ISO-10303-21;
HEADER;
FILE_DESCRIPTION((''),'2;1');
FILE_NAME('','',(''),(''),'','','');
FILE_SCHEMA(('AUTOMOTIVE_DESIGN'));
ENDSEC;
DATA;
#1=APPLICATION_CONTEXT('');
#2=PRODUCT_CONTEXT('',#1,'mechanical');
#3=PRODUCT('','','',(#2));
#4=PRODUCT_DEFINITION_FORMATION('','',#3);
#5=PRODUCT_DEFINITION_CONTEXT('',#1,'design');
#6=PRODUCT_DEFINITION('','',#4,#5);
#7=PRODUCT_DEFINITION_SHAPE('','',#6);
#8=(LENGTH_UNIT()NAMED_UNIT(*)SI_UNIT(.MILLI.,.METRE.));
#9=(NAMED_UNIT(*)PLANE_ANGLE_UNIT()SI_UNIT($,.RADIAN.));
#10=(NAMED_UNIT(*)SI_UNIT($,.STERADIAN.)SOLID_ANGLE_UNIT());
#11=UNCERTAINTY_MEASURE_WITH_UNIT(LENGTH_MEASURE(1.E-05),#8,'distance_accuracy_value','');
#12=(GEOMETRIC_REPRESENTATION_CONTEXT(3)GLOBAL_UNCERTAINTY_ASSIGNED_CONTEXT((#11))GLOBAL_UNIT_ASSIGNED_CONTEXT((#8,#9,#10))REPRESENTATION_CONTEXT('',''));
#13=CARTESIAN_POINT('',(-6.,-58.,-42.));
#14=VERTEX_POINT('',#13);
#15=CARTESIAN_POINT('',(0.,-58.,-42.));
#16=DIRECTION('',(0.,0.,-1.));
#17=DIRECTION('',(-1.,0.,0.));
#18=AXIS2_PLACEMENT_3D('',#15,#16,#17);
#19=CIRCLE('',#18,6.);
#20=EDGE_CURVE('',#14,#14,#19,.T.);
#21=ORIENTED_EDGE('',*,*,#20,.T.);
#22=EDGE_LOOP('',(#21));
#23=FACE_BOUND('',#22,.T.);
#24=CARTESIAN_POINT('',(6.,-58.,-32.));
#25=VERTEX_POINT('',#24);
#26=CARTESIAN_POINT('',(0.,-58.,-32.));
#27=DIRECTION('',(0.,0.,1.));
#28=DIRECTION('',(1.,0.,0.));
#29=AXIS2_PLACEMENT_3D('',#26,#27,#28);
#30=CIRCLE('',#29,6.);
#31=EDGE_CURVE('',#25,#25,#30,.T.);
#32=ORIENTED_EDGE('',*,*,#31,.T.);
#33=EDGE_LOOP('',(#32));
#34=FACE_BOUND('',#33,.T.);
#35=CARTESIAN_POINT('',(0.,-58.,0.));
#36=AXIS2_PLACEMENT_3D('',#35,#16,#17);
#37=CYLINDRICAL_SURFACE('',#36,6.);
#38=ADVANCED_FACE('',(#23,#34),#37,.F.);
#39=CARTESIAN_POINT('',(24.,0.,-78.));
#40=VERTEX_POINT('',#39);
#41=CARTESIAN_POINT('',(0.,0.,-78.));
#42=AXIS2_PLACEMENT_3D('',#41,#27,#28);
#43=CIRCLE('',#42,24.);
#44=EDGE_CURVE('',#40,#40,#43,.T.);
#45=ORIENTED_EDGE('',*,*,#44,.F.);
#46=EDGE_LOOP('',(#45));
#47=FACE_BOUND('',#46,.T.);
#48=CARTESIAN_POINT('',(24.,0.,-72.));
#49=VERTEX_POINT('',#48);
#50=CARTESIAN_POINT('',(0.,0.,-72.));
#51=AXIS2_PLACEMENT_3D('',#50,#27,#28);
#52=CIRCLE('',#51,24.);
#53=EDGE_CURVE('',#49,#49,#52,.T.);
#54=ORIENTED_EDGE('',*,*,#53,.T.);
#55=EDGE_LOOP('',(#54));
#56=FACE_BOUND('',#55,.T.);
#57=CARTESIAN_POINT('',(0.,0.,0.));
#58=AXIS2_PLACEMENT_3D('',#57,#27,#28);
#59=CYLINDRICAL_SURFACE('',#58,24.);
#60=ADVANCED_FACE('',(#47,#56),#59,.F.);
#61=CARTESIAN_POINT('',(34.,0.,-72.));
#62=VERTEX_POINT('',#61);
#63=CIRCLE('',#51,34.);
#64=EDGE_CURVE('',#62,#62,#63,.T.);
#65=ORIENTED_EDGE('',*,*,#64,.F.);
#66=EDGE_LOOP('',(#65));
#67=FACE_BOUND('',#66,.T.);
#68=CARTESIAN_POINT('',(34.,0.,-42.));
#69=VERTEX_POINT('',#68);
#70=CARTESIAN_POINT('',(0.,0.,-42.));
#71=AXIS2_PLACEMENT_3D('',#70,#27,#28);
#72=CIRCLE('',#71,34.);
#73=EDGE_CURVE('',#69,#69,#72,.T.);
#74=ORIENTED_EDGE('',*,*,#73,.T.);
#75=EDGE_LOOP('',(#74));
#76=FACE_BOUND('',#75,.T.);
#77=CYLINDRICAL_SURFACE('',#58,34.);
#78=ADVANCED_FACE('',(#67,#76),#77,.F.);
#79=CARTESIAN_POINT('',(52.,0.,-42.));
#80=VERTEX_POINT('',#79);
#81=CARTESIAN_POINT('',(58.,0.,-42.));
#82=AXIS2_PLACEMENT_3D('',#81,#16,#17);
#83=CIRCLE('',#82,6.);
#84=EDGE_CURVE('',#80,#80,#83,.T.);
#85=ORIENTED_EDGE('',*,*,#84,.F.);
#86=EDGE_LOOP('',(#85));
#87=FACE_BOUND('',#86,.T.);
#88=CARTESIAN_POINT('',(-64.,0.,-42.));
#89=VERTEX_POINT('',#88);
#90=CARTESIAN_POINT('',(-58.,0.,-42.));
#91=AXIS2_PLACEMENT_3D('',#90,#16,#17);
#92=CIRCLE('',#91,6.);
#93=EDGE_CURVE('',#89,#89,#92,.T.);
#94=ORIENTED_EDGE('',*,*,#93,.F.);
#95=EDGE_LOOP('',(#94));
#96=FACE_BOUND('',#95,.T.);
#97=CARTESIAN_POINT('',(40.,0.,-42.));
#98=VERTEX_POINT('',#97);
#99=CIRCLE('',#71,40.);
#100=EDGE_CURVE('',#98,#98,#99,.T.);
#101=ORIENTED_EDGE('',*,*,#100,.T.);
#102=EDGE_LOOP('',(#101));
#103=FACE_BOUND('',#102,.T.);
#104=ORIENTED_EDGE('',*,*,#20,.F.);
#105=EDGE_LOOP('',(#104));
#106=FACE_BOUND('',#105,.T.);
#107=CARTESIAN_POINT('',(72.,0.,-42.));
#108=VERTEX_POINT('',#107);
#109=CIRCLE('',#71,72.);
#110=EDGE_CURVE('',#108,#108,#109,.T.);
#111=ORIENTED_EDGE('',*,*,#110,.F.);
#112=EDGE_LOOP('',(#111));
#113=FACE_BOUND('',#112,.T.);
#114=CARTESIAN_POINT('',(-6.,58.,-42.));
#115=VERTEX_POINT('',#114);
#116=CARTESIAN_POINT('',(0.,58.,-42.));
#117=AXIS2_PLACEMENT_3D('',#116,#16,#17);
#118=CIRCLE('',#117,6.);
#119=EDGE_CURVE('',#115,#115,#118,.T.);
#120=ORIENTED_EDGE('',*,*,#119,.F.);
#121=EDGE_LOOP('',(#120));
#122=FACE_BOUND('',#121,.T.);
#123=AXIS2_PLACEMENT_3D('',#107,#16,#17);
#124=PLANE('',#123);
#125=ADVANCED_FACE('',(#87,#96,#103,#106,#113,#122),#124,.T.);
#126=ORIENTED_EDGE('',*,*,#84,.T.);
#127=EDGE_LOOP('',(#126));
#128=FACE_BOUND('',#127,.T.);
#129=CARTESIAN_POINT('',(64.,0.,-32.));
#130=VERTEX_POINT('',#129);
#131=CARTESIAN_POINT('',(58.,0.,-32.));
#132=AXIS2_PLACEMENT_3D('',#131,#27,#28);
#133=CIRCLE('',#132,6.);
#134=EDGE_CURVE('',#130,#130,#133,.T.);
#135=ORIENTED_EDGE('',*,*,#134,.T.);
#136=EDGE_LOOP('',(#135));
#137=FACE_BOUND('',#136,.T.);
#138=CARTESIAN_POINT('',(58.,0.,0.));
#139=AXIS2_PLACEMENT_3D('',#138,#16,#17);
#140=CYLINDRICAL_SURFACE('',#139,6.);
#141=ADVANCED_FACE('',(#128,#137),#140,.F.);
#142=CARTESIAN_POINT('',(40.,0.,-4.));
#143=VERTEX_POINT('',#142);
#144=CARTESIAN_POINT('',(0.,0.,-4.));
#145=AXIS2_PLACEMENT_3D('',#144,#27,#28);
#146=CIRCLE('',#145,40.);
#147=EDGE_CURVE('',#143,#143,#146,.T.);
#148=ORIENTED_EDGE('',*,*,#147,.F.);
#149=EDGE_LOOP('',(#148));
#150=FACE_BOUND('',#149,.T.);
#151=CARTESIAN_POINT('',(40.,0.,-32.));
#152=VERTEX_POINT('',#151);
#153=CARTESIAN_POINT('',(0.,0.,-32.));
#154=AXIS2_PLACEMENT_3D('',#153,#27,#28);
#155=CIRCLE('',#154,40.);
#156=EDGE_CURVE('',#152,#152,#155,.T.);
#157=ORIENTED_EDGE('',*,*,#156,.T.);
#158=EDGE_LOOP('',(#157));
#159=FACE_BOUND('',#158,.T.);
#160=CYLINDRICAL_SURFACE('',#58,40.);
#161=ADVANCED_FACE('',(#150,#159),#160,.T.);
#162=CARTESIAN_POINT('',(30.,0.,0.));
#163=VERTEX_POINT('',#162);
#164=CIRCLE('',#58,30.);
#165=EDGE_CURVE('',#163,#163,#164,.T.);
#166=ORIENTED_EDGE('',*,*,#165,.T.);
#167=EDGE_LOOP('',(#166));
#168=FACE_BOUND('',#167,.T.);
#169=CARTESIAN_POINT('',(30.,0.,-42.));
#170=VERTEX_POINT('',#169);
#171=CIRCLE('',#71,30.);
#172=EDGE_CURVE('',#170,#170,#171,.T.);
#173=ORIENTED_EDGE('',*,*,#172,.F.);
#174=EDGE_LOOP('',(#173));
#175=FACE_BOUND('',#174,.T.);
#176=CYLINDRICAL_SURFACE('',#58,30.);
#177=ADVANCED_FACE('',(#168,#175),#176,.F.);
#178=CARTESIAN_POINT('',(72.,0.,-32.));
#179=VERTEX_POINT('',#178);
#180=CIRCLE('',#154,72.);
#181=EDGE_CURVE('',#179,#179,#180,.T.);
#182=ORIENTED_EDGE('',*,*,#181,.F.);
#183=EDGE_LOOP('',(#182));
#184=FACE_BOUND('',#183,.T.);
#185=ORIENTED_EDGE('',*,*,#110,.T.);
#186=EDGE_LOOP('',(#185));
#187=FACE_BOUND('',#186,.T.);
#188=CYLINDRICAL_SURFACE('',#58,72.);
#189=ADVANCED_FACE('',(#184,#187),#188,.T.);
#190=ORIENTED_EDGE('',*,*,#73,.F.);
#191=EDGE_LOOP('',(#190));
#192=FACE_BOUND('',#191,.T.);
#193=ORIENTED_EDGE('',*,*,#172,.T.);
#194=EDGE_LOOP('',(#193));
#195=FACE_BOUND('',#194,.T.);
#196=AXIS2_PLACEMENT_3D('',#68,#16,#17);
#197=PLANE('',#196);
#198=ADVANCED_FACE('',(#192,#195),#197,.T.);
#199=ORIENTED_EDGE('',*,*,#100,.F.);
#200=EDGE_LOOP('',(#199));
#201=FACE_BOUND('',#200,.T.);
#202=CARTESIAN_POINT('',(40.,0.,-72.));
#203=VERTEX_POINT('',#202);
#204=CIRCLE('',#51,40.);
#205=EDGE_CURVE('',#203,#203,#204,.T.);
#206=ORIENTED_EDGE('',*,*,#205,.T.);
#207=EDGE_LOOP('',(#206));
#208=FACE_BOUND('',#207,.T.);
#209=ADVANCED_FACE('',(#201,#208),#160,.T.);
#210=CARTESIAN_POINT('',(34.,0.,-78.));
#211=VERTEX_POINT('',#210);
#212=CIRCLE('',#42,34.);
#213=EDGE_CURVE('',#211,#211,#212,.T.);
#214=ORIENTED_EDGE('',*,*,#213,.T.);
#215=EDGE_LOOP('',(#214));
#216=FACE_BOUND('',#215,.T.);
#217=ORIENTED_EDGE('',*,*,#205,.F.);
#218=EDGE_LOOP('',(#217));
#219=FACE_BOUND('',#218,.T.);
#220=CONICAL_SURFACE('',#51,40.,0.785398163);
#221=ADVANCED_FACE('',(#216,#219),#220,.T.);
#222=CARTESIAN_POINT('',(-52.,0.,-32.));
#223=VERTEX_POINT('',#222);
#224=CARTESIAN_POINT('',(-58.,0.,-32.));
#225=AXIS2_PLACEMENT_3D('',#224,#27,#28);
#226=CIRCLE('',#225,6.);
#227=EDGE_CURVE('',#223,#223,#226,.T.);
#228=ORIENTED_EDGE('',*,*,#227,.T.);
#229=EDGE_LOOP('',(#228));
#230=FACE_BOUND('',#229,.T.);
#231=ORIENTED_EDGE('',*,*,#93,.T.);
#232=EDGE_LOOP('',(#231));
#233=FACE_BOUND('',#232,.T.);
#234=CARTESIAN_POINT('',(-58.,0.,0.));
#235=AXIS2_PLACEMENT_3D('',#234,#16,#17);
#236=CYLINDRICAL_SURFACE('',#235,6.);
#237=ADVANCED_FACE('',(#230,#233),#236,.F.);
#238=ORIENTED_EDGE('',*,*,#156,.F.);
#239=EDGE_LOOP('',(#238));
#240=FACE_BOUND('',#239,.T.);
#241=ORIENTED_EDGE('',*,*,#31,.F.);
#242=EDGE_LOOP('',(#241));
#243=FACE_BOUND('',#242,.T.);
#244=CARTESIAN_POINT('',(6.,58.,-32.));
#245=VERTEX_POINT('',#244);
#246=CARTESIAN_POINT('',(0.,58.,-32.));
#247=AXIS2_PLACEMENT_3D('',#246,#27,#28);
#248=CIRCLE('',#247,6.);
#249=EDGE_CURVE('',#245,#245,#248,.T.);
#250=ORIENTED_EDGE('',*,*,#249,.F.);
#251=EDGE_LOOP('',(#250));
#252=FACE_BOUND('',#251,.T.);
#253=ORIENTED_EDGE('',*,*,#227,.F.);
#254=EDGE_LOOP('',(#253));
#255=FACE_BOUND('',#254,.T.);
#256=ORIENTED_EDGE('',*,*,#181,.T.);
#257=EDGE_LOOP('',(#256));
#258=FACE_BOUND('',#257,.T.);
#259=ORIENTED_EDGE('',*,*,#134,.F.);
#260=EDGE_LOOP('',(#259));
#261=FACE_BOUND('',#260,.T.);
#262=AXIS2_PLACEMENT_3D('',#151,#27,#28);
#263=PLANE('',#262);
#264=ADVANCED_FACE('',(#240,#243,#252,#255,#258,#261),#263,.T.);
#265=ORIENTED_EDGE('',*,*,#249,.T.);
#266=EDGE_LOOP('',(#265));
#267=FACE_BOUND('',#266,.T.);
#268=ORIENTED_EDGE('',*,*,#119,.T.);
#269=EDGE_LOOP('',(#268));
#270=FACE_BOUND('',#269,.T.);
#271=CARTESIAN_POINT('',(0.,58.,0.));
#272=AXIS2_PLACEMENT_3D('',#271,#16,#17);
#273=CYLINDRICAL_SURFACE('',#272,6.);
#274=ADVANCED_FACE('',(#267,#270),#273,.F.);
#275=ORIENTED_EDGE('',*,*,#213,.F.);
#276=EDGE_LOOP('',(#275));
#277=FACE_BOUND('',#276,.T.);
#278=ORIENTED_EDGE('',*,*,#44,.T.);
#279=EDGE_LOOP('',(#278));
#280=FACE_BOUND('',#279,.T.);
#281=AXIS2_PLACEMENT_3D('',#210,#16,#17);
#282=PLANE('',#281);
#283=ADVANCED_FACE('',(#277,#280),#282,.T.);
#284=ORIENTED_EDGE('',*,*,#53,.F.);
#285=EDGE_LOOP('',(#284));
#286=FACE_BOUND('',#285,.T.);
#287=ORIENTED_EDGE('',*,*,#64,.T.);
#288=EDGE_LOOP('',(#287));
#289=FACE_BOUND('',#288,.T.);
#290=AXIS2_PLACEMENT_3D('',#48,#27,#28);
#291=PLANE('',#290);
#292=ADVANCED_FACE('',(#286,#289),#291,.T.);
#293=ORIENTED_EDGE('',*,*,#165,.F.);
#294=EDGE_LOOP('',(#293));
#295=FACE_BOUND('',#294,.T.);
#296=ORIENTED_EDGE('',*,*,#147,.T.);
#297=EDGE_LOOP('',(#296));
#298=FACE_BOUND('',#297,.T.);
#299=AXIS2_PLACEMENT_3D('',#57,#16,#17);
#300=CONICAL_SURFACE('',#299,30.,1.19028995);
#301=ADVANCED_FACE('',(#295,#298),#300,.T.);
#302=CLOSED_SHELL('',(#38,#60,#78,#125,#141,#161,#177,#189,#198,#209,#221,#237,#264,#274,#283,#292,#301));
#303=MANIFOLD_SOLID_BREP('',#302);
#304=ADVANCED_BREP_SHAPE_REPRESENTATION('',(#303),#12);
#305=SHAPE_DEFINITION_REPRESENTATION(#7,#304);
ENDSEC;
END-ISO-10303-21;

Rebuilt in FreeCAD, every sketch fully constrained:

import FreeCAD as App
import Part
import Sketcher

V = App.Vector
Q = App.Units.Quantity


def add_polygon(sketch, points):
    """Adds a closed chain of lines whose ends are joined by coincident constraints."""
    first, n = sketch.GeometryCount, len(points)
    for a, b in zip(points, points[1:] + points[:1]):
        sketch.addGeometry(Part.LineSegment(App.Vector(*a, 0), App.Vector(*b, 0)), False)
    for i in range(n):
        sketch.addConstraint(Sketcher.Constraint("Coincident", first + i, 2, first + (i + 1) % n, 1))

doc = App.newDocument("Part")
body = doc.addObject("PartDesign::Body", "Body")

# Sketch on XZ plane
sketch1 = body.newObject("Sketcher::SketchObject", "Sketch")
sketch1.AttachmentSupport = (doc.getObject("XZ_Plane"), [""])
sketch1.MapMode = "FlatFace"
add_polygon(sketch1, [(24, -78), (24, -72), (34, -72), (34, -42), (30, -42), (30, 0), (40, -4), (40, -32), (72, -32), (72, -42), (40, -42), (40, -72), (34, -78)])  # lines 0-12
sketch1.addConstraint(Sketcher.Constraint("Vertical", 0))
sketch1.addConstraint(Sketcher.Constraint("Horizontal", 1))
sketch1.addConstraint(Sketcher.Constraint("Vertical", 2))
sketch1.addConstraint(Sketcher.Constraint("Horizontal", 3))
sketch1.addConstraint(Sketcher.Constraint("Vertical", 4))
sketch1.addConstraint(Sketcher.Constraint("Vertical", 6))
sketch1.addConstraint(Sketcher.Constraint("Horizontal", 7))
sketch1.addConstraint(Sketcher.Constraint("Vertical", 8))
sketch1.addConstraint(Sketcher.Constraint("Horizontal", 9))
sketch1.addConstraint(Sketcher.Constraint("Vertical", 10))
sketch1.addConstraint(Sketcher.Constraint("Horizontal", 12))
sketch1.addConstraint(Sketcher.Constraint("PointOnObject", 4, 2, -1))
sketch1.addConstraint(Sketcher.Constraint("Horizontal", 3, 2, 8, 2))
sketch1.addConstraint(Sketcher.Constraint("Horizontal", 1, 2, 10, 2))
sketch1.addConstraint(Sketcher.Constraint("Vertical", 6, 2, 9, 2))
sketch1.addConstraint(Sketcher.Constraint("Vertical", 2, 2, 11, 2))
sketch1.addConstraint(Sketcher.Constraint("Equal", 12, 8))
sketch1.addConstraint(Sketcher.Constraint("DistanceX", 1, 1, 1, 2, Q("10 mm")))
sketch1.addConstraint(Sketcher.Constraint("DistanceX", 3, 2, 3, 1, Q("4 mm")))
sketch1.addConstraint(Sketcher.Constraint("DistanceX", 7, 1, 7, 2, Q("32 mm")))
sketch1.addConstraint(Sketcher.Constraint("DistanceY", 0, 1, 0, 2, Q("6 mm")))
sketch1.addConstraint(Sketcher.Constraint("DistanceY", 2, 1, 2, 2, Q("30 mm")))
sketch1.addConstraint(Sketcher.Constraint("DistanceY", 4, 1, 4, 2, Q("42 mm")))
sketch1.addConstraint(Sketcher.Constraint("DistanceY", 6, 2, 6, 1, Q("28 mm")))
sketch1.addConstraint(Sketcher.Constraint("Angle", 11, Q("-135 deg")))
sketch1.addConstraint(Sketcher.Constraint("DistanceX", -1, 1, 0, 2, Q("24 mm")))
revolution = body.newObject("PartDesign::Revolution", "Revolution")
revolution.Profile = sketch1
revolution.ReferenceAxis = (sketch1, ["V_Axis"])
revolution.Angle = 360

# Sketch on XY plane
sketch2 = body.newObject("Sketcher::SketchObject", "Sketch001")
sketch2.AttachmentSupport = (doc.getObject("XY_Plane"), [""])
sketch2.MapMode = "FlatFace"
sketch2.AttachmentOffset = App.Placement(V(0, 0, -42), App.Rotation())
sketch2.addGeometry(Part.Circle(V(0, 58, 0), V(0, 0, 1), 6), False)
sketch2.addGeometry(Part.Circle(V(-58, 0, 0), V(0, 0, 1), 6), False)
sketch2.addGeometry(Part.Circle(V(0, -58, 0), V(0, 0, 1), 6), False)
sketch2.addGeometry(Part.Circle(V(58, 0, 0), V(0, 0, 1), 6), False)
sketch2.addConstraint(Sketcher.Constraint("Equal", 0, 1))
sketch2.addConstraint(Sketcher.Constraint("Equal", 1, 2))
sketch2.addConstraint(Sketcher.Constraint("Equal", 2, 3))
sketch2.addConstraint(Sketcher.Constraint("Symmetric", 0, 3, 2, 3, -1, 1))
sketch2.addConstraint(Sketcher.Constraint("Symmetric", 1, 3, 3, 3, -1, 1))
sketch2.addConstraint(Sketcher.Constraint("PointOnObject", 0, 3, -2))
sketch2.addConstraint(Sketcher.Constraint("PointOnObject", 1, 3, -1))
sketch2.addConstraint(Sketcher.Constraint("Diameter", 0, Q("12 mm")))
sketch2.addConstraint(Sketcher.Constraint("DistanceY", -1, 1, 0, 3, Q("58 mm")))
sketch2.addConstraint(Sketcher.Constraint("DistanceX", 1, 3, -1, 1, Q("58 mm")))
pocket1 = body.newObject("PartDesign::Pocket", "Pocket")
pocket1.Profile = sketch2
pocket1.Type = "ThroughAll"
pocket1.Midplane = True

doc.recompute()
